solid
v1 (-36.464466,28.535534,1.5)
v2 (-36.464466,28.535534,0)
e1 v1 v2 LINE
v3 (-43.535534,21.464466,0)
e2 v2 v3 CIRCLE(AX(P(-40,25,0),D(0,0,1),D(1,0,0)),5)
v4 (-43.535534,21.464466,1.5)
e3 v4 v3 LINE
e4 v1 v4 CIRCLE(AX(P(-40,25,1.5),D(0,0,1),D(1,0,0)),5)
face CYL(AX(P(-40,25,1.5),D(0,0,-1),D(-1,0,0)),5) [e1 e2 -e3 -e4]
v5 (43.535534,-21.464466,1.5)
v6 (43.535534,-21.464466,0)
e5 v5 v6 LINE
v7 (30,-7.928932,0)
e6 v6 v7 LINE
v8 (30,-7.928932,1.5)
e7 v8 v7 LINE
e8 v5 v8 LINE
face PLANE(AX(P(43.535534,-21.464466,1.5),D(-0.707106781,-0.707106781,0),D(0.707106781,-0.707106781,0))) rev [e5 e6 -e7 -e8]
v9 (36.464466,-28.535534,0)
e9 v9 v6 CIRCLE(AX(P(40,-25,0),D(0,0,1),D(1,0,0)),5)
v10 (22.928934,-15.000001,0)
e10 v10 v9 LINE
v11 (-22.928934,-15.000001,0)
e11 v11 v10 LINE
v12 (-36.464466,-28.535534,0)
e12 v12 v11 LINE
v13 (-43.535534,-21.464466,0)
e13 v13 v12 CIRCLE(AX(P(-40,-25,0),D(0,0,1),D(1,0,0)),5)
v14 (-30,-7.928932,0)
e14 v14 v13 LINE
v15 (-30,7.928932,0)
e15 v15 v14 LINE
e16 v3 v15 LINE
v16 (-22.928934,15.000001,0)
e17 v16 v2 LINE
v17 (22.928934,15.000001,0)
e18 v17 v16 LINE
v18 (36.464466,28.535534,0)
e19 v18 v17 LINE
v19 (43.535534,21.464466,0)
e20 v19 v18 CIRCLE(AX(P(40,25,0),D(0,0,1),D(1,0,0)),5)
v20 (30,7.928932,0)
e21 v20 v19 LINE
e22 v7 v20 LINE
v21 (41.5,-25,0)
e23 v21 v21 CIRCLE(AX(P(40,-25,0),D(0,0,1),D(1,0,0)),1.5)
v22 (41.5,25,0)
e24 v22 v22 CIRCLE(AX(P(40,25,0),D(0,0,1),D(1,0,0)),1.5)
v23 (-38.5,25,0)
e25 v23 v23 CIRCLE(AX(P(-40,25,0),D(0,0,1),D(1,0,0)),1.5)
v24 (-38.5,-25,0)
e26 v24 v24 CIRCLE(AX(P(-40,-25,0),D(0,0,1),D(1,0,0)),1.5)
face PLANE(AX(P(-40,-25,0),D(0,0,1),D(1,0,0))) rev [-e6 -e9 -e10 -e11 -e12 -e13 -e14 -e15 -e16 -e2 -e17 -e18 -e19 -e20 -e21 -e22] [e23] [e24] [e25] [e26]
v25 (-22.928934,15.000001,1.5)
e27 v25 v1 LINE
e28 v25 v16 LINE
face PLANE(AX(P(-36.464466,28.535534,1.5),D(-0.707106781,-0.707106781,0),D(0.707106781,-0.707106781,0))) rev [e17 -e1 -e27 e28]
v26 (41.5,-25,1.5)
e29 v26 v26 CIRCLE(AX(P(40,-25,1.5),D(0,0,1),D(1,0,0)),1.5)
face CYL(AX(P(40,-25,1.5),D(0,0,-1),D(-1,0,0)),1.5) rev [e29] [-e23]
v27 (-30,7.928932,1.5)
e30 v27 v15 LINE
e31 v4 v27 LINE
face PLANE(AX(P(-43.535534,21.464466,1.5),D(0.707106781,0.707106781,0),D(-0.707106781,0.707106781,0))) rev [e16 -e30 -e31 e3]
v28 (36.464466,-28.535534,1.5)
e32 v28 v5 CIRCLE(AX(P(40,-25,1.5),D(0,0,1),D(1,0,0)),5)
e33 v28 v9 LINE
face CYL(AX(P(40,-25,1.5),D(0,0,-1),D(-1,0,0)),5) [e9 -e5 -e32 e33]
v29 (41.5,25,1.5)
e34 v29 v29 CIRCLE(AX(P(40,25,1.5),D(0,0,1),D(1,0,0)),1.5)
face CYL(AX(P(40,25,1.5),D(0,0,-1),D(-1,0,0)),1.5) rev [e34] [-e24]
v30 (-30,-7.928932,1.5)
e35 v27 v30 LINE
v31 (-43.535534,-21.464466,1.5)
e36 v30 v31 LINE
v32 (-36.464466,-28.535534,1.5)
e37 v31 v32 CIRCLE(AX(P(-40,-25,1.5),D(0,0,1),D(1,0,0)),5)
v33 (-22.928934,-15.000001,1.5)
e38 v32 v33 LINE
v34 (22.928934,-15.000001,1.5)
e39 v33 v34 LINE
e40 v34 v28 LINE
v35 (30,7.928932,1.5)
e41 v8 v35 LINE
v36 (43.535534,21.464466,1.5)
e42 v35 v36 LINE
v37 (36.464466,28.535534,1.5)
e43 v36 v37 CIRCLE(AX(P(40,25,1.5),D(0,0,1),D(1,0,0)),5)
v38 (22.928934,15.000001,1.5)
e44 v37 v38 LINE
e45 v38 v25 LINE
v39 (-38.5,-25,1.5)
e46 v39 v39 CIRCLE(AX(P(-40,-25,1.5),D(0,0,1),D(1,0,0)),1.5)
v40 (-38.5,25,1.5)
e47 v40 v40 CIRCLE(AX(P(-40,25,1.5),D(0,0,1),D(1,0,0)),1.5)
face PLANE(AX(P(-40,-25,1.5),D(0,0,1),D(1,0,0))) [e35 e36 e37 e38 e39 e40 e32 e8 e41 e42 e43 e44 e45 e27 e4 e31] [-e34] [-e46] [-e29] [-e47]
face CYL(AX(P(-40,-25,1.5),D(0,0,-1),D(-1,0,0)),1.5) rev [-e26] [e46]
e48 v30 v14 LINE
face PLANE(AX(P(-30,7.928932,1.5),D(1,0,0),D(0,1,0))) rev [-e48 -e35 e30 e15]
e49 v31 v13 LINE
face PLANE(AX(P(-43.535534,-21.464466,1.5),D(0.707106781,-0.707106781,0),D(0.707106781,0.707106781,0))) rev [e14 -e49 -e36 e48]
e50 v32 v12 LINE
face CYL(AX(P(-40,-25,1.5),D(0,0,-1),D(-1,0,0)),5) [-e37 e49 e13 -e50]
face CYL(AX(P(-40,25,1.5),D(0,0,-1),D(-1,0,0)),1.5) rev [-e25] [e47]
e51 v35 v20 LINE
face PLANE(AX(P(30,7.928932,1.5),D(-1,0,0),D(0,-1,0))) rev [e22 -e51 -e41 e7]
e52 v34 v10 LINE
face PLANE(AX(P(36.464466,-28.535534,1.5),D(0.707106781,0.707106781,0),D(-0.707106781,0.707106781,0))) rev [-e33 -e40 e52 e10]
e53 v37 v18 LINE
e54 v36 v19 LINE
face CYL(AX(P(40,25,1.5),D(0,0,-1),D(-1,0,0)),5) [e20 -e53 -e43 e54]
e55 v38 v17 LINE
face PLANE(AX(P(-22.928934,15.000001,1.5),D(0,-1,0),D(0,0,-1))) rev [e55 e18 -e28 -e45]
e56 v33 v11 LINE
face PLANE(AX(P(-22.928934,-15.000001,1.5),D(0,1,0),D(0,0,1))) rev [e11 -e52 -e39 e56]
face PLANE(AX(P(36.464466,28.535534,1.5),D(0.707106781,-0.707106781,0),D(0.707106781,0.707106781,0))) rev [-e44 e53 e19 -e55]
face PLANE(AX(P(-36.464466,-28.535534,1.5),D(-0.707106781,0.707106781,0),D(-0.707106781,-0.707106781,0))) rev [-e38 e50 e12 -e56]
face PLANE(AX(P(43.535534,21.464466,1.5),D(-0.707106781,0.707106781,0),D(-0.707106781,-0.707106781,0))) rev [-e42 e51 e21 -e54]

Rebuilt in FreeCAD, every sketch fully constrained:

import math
import FreeCAD as App
import Part
import Sketcher
from FreeCAD import Vector

doc = App.newDocument("Part")
params = doc.addObject("Spreadsheet::Sheet", "Params")
for row, (alias, value) in enumerate([
    ("sketch1_diameter", "3 mm"),
    ("sketch1_radius", "5 mm"),
    ("pad1_length", "1.5 mm"),
], start=1):
    params.set(f"A{row}", alias)
    params.set(f"B{row}", "=" + value)
    params.setAlias(f"B{row}", alias)

body = doc.addObject("PartDesign::Body", "Body")

# Sketch on XY plane
sketch1 = body.newObject("Sketcher::SketchObject", "Sketch")
sketch1.AttachmentSupport = (doc.getObject("XY_Plane"), [""])
sketch1.MapMode = "FlatFace"
sketch1.addGeometry(Part.LineSegment(Vector(-43.5, 21.5, 0), Vector(-30, 7.9, 0)), False)
sketch1.addGeometry(Part.LineSegment(Vector(-30, 7.9, 0), Vector(-30, -7.9, 0)), False)
sketch1.addGeometry(Part.LineSegment(Vector(-30, -7.9, 0), Vector(-43.5, -21.5, 0)), False)
sketch1.addGeometry(Part.ArcOfCircle(Part.Circle(Vector(-40, -25, 0), Vector(0, 0, 1), 5), math.radians(135), math.radians(315)), False)
sketch1.addGeometry(Part.LineSegment(Vector(-36.5, -28.5, 0), Vector(-22.9, -15, 0)), False)
sketch1.addGeometry(Part.LineSegment(Vector(-22.9, -15, 0), Vector(22.9, -15, 0)), False)
sketch1.addGeometry(Part.LineSegment(Vector(22.9, -15, 0), Vector(36.5, -28.5, 0)), False)
sketch1.addGeometry(Part.ArcOfCircle(Part.Circle(Vector(40, -25, 0), Vector(0, 0, 1), 5), math.radians(-135), math.radians(45)), False)
sketch1.addGeometry(Part.LineSegment(Vector(43.5, -21.5, 0), Vector(30, -7.9, 0)), False)
sketch1.addGeometry(Part.LineSegment(Vector(30, -7.9, 0), Vector(30, 7.9, 0)), False)
sketch1.addGeometry(Part.LineSegment(Vector(30, 7.9, 0), Vector(43.5, 21.5, 0)), False)
sketch1.addGeometry(Part.ArcOfCircle(Part.Circle(Vector(40, 25, 0), Vector(0, 0, 1), 5), math.radians(-45), math.radians(135)), False)
sketch1.addGeometry(Part.LineSegment(Vector(36.5, 28.5, 0), Vector(22.9, 15, 0)), False)
sketch1.addGeometry(Part.LineSegment(Vector(22.9, 15, 0), Vector(-22.9, 15, 0)), False)
sketch1.addGeometry(Part.LineSegment(Vector(-22.9, 15, 0), Vector(-36.5, 28.5, 0)), False)
sketch1.addGeometry(Part.ArcOfCircle(Part.Circle(Vector(-40, 25, 0), Vector(0, 0, 1), 5), math.radians(45), math.radians(225)), False)
sketch1.addGeometry(Part.Circle(Vector(-40, -25, 0), Vector(0, 0, 1), 1.5), False)
sketch1.addGeometry(Part.Circle(Vector(40, -25, 0), Vector(0, 0, 1), 1.5), False)
sketch1.addGeometry(Part.Circle(Vector(-40, 25, 0), Vector(0, 0, 1), 1.5), False)
sketch1.addGeometry(Part.Circle(Vector(40, 25, 0), Vector(0, 0, 1), 1.5), False)
sketch1.addConstraint(Sketcher.Constraint("Coincident", 0, 2, 1, 1))
sketch1.addConstraint(Sketcher.Constraint("Coincident", 1, 2, 2, 1))
sketch1.addConstraint(Sketcher.Constraint("Tangent", 2, 2, 3, 1))
sketch1.addConstraint(Sketcher.Constraint("Tangent", 3, 2, 4, 1))
sketch1.addConstraint(Sketcher.Constraint("Coincident", 4, 2, 5, 1))
sketch1.addConstraint(Sketcher.Constraint("Coincident", 5, 2, 6, 1))
sketch1.addConstraint(Sketcher.Constraint("Tangent", 6, 2, 7, 1))
sketch1.addConstraint(Sketcher.Constraint("Tangent", 7, 2, 8, 1))
sketch1.addConstraint(Sketcher.Constraint("Coincident", 8, 2, 9, 1))
sketch1.addConstraint(Sketcher.Constraint("Coincident", 9, 2, 10, 1))
sketch1.addConstraint(Sketcher.Constraint("Tangent", 10, 2, 11, 1))
sketch1.addConstraint(Sketcher.Constraint("Tangent", 11, 2, 12, 1))
sketch1.addConstraint(Sketcher.Constraint("Coincident", 12, 2, 13, 1))
sketch1.addConstraint(Sketcher.Constraint("Coincident", 13, 2, 14, 1))
sketch1.addConstraint(Sketcher.Constraint("Tangent", 14, 2, 15, 1))
sketch1.addConstraint(Sketcher.Constraint("Tangent", 15, 2, 0, 1))
sketch1.addConstraint(Sketcher.Constraint("Vertical", 1))
sketch1.addConstraint(Sketcher.Constraint("Horizontal", 5))
sketch1.addConstraint(Sketcher.Constraint("Vertical", 9))
sketch1.addConstraint(Sketcher.Constraint("Horizontal", 13))
sketch1.addConstraint(Sketcher.Constraint("Coincident", 16, 3, 3, 3))
sketch1.addConstraint(Sketcher.Constraint("Coincident", 17, 3, 7, 3))
sketch1.addConstraint(Sketcher.Constraint("Coincident", 18, 3, 15, 3))
sketch1.addConstraint(Sketcher.Constraint("Coincident", 19, 3, 11, 3))
sketch1.addConstraint(Sketcher.Constraint("Equal", 3, 7))
sketch1.addConstraint(Sketcher.Constraint("Equal", 7, 11))
sketch1.addConstraint(Sketcher.Constraint("Equal", 11, 15))
sketch1.addConstraint(Sketcher.Constraint("Equal", 16, 17))
sketch1.addConstraint(Sketcher.Constraint("Equal", 17, 18))
sketch1.addConstraint(Sketcher.Constraint("Equal", 18, 19))
sketch1.addConstraint(Sketcher.Constraint("Symmetric", 3, 3, 11, 3, -1, 1))
sketch1.addConstraint(Sketcher.Constraint("Symmetric", 7, 3, 15, 3, -1, 1))
sketch1.addConstraint(Sketcher.Constraint("Symmetric", 0, 2, 8, 2, -1, 1))
sketch1.addConstraint(Sketcher.Constraint("Symmetric", 4, 2, 12, 2, -1, 1))
sketch1.addConstraint(Sketcher.Constraint("Symmetric", 3, 3, 7, 3, -2))
sketch1.addConstraint(Sketcher.Constraint("Perpendicular", 0, 2))
sketch1.addConstraint(Sketcher.Constraint("Parallel", 2, 4))
sketch1.addConstraint(Sketcher.Constraint("Perpendicular", 4, 6))
sketch1.addConstraint(Sketcher.Constraint("Perpendicular", 8, 10))
sketch1.addConstraint(Sketcher.Constraint("Perpendicular", 12, 14))
sketch1.addConstraint(Sketcher.Constraint("Horizontal", 3, 2, 6, 2))
sketch1.addConstraint(Sketcher.Constraint("Diameter", 16, 3.0))
sketch1.addConstraint(Sketcher.Constraint("Radius", 3, 5.0))
sketch1.addConstraint(Sketcher.Constraint("DistanceX", 3, 3, -1, 1, 40.0))
sketch1.addConstraint(Sketcher.Constraint("DistanceY", 3, 3, -1, 1, 25.0))
sketch1.addConstraint(Sketcher.Constraint("DistanceX", 0, 2, -1, 1, 30.0))
sketch1.addConstraint(Sketcher.Constraint("DistanceY", 4, 2, -1, 1, 15.000001))
sketch1.setExpression("Constraints[41]", "Params.sketch1_diameter")
sketch1.setExpression("Constraints[42]", "Params.sketch1_radius")
pad1 = body.newObject("PartDesign::Pad", "Pad")
pad1.Profile = sketch1
pad1.setExpression("Length", "Params.pad1_length")

doc.recompute()
